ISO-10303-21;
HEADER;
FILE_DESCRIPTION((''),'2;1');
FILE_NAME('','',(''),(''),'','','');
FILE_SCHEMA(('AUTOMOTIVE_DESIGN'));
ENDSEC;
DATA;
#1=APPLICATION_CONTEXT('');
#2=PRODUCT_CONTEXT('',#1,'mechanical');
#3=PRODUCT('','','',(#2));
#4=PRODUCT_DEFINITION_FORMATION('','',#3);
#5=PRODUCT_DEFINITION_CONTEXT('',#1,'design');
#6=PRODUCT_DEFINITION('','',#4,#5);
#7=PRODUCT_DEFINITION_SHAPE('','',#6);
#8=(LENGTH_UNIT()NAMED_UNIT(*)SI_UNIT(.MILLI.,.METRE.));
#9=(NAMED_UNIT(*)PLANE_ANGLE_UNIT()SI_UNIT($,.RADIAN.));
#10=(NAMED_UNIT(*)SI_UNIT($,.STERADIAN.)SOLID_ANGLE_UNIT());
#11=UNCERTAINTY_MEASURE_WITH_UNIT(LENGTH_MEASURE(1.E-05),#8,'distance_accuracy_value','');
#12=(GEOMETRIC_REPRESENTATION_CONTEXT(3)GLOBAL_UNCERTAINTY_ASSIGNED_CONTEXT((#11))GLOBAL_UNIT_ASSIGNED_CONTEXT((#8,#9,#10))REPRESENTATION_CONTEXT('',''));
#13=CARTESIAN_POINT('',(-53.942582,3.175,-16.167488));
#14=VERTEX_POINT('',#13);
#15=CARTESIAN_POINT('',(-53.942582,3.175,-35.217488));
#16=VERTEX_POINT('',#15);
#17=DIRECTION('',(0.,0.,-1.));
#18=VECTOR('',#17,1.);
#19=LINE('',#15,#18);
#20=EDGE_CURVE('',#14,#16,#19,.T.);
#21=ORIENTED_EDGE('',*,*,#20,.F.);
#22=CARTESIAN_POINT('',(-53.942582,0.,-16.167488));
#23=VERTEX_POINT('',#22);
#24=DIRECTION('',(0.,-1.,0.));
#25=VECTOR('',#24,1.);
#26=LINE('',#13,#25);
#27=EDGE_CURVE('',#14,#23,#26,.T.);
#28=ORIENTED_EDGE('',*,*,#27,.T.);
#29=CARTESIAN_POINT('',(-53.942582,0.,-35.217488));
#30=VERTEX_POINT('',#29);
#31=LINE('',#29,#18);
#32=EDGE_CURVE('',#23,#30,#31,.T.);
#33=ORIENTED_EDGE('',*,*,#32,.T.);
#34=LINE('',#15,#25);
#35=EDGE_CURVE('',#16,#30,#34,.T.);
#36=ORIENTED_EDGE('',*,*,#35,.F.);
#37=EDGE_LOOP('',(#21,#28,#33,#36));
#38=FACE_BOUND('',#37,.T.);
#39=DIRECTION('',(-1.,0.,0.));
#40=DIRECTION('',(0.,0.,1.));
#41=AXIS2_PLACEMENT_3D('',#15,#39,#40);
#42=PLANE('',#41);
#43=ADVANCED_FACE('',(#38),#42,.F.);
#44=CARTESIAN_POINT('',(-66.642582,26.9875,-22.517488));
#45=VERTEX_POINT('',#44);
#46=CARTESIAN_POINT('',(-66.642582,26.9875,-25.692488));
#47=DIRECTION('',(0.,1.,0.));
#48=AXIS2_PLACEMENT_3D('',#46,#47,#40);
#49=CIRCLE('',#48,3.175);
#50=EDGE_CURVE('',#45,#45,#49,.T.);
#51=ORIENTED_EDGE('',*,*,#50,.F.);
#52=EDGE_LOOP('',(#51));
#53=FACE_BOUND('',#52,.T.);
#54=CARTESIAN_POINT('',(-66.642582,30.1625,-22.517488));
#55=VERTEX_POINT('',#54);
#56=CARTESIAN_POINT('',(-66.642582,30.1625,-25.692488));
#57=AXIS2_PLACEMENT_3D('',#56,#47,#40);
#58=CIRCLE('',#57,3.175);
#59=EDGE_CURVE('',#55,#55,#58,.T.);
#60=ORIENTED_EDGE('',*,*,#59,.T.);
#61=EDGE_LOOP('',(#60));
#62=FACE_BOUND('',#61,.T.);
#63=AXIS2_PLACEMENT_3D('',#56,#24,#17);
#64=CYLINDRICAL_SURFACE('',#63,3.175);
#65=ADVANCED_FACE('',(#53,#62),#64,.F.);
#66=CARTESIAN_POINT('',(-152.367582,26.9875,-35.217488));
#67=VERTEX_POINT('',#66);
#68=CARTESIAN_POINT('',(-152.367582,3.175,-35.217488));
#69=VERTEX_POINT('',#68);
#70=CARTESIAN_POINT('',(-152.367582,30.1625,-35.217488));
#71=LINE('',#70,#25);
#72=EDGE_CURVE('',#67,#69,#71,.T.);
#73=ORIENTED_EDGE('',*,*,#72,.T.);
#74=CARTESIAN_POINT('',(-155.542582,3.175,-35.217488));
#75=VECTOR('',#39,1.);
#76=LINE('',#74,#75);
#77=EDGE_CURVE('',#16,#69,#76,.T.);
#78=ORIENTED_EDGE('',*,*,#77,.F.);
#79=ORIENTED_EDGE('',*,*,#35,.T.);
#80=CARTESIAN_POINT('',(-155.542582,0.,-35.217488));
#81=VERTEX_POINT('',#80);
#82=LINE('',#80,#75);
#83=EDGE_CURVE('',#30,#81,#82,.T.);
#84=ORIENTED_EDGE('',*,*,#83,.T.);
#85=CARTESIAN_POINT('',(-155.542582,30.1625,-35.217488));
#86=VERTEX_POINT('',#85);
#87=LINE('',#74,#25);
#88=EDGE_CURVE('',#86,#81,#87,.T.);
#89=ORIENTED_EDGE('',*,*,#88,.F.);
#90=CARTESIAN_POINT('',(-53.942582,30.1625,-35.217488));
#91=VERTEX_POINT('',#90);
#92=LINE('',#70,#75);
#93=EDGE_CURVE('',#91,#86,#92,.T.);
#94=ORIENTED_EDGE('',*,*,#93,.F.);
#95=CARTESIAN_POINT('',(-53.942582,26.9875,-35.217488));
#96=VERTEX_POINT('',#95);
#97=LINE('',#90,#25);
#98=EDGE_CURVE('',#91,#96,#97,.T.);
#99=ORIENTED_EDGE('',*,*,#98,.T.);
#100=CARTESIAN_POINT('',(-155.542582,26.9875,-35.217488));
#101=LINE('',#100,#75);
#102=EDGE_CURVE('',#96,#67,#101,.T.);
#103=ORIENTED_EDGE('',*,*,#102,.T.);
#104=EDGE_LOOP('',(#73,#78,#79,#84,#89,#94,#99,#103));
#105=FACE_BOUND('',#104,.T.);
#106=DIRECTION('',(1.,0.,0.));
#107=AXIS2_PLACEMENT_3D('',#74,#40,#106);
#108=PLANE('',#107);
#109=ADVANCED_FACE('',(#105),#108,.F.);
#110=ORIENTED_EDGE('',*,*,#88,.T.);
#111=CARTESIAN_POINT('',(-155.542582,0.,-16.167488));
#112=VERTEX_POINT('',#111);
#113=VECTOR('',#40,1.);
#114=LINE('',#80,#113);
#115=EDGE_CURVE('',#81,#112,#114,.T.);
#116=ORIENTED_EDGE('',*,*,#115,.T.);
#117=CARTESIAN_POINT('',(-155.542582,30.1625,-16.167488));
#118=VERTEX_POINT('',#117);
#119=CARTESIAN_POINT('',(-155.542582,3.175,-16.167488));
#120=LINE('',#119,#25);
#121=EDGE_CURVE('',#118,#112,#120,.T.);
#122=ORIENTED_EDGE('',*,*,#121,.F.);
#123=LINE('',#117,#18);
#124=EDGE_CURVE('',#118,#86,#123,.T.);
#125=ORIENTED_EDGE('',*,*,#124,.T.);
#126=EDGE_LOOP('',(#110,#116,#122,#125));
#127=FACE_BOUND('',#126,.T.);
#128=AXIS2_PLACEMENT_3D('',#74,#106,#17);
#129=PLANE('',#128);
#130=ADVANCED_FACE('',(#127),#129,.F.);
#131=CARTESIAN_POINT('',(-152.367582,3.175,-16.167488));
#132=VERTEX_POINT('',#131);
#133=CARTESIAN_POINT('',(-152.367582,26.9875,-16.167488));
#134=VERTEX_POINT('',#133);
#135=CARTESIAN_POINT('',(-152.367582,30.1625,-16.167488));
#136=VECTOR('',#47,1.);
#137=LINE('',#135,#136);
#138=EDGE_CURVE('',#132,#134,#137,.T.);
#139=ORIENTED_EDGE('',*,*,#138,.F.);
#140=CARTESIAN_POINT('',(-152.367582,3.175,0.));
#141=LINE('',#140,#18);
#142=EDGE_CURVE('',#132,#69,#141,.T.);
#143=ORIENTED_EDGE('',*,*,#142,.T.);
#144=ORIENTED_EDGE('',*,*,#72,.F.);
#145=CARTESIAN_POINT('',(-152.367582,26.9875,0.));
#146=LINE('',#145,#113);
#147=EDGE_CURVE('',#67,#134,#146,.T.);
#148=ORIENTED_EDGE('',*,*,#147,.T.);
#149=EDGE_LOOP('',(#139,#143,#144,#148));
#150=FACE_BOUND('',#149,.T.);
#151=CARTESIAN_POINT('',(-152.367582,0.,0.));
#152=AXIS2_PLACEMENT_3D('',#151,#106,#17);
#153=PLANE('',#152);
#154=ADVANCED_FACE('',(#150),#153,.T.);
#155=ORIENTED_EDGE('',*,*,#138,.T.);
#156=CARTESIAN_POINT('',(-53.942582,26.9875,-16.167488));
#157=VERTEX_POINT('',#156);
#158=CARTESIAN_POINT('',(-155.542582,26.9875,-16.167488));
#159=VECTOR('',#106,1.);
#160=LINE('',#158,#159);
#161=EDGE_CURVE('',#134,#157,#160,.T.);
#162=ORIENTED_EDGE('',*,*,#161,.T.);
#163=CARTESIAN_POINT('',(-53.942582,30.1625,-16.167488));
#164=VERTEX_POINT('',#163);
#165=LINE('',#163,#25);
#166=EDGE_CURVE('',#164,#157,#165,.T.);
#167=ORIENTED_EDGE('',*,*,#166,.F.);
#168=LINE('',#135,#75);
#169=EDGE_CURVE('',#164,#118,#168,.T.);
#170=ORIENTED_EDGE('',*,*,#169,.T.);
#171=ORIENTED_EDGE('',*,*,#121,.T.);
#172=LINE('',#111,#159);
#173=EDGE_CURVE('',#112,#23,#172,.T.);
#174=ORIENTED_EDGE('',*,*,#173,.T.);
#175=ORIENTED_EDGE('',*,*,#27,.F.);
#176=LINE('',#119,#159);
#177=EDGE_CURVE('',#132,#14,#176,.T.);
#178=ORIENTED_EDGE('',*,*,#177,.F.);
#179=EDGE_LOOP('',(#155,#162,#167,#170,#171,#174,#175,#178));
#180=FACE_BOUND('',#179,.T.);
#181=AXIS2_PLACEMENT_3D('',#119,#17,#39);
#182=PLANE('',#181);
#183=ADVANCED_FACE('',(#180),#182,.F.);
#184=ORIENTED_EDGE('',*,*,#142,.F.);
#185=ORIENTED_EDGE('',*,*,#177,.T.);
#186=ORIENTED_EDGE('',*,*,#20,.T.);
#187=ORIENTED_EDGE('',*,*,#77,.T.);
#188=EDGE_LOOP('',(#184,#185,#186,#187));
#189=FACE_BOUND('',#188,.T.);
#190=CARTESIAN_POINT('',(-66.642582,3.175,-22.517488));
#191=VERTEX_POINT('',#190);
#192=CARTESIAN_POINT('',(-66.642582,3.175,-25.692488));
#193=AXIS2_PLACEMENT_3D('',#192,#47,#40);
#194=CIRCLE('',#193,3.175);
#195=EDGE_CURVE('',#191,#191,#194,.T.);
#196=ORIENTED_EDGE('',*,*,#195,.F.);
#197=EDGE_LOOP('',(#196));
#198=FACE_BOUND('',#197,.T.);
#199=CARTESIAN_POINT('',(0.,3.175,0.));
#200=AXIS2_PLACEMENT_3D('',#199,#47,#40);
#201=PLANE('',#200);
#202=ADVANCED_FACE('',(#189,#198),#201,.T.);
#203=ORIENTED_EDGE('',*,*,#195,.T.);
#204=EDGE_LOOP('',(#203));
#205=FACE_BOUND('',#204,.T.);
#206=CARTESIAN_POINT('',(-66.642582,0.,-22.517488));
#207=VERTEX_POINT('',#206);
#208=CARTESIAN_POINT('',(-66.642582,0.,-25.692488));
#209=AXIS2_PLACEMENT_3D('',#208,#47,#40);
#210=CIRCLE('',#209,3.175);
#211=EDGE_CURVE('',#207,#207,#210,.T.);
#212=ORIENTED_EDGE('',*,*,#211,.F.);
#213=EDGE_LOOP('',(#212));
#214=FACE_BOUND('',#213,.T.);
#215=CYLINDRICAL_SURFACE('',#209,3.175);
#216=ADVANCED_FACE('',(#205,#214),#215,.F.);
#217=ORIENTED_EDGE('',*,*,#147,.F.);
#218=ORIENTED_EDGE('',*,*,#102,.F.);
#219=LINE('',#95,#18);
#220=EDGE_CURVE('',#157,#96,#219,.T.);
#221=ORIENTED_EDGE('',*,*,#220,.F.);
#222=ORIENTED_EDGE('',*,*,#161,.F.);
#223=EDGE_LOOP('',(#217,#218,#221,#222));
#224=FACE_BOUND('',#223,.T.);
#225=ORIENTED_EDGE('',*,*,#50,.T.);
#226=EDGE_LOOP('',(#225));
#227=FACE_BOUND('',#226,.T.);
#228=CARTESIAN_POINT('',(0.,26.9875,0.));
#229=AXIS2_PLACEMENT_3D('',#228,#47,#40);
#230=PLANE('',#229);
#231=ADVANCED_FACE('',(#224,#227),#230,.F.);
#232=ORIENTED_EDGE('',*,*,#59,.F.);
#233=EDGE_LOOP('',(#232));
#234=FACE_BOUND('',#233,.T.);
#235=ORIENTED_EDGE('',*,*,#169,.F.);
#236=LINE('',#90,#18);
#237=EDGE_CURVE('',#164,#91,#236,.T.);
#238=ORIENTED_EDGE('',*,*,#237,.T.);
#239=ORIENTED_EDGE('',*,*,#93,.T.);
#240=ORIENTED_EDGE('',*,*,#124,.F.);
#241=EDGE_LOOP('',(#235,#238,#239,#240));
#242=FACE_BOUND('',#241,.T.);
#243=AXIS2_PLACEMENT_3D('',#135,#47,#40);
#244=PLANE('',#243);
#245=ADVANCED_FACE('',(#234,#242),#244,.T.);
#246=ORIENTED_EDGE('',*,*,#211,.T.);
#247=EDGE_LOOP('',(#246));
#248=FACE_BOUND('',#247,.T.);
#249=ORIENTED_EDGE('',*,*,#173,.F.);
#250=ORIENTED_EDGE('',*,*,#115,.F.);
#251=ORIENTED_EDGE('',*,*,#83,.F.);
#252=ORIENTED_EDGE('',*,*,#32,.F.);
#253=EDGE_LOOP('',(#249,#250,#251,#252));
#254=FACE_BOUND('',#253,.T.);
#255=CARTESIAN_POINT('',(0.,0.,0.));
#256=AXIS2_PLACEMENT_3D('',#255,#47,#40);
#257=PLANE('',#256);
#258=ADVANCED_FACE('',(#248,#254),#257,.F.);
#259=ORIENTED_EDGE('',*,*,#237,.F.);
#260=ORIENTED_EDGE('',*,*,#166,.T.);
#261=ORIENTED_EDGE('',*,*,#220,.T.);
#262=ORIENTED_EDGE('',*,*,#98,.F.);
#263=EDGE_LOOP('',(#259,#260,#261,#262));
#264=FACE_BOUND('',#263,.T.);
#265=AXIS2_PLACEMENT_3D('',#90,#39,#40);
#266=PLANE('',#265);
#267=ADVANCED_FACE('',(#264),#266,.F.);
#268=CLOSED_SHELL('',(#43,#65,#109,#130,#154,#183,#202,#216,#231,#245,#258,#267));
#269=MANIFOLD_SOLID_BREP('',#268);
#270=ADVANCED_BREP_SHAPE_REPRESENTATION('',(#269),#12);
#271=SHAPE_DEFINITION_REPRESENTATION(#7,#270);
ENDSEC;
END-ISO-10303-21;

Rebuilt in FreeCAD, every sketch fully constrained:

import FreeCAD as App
import Part
import Sketcher

V = App.Vector
Q = App.Units.Quantity


def add_polygon(sketch, points):
    """Adds a closed chain of lines whose ends are joined by coincident constraints."""
    first, n = sketch.GeometryCount, len(points)
    for a, b in zip(points, points[1:] + points[:1]):
        sketch.addGeometry(Part.LineSegment(App.Vector(*a, 0), App.Vector(*b, 0)), False)
    for i in range(n):
        sketch.addConstraint(Sketcher.Constraint("Coincident", first + i, 2, first + (i + 1) % n, 1))

doc = App.newDocument("Part")
params = doc.addObject("Spreadsheet::Sheet", "Params")
for row, (alias, value) in enumerate([
    ("sketch1_width", "4 in"),
    ("sketch1_height", "0.75 in"),
    ("pad1_length", "0.125 in"),
    ("sketch2_diameter", "0.25 in"),
    ("sketch3_diameter", "0.25 in"),
    ("sketch3_width", "4 in"),
    ("sketch3_height", "0.75 in"),
    ("pad2_length", "0.125 in"),
    ("sketch4_height", "0.75 in"),
    ("sketch4_width", "1.1875 in"),
    ("pad3_length", "0.125 in"),
], start=1):
    params.set(f"A{row}", alias)
    params.set(f"B{row}", "=" + value)
    params.setAlias(f"B{row}", alias)

body = doc.addObject("PartDesign::Body", "Body")

sketch1 = body.newObject("Sketcher::SketchObject", "Sketch")
sketch1.AttachmentSupport = (doc.getObject("XZ_Plane"), [""])
sketch1.MapMode = "FlatFace"
add_polygon(sketch1, [(-155.542582, -35.217488), (-155.542582, -16.167488), (-53.942582, -16.167488), (-53.942582, -35.217488)])
sketch1.addConstraint([
    Sketcher.Constraint("Vertical", 0),
    Sketcher.Constraint("Horizontal", 1),
    Sketcher.Constraint("Vertical", 2),
    Sketcher.Constraint("Horizontal", 3),
    Sketcher.Constraint("DistanceX", 1, 1, 1, 2, Q("4 in")),
    Sketcher.Constraint("DistanceY", 0, 1, 0, 2, Q("0.75 in")),
    Sketcher.Constraint("DistanceX", 0, 2, -1, 1, Q("155.542582 mm")),
    Sketcher.Constraint("DistanceY", 0, 2, -1, 1, Q("16.167488 mm")),
])
sketch1.setExpression("Constraints[8]", "Params.sketch1_width")
sketch1.setExpression("Constraints[9]", "Params.sketch1_height")
pad1 = body.newObject("PartDesign::Pad", "Pad")
pad1.Profile = sketch1
pad1.setExpression("Length", "Params.pad1_length")
pad1.Reversed = True

sketch2 = body.newObject("Sketcher::SketchObject", "Sketch001")
sketch2.AttachmentSupport = (doc.getObject("XZ_Plane"), [""])
sketch2.MapMode = "FlatFace"
sketch2.AttachmentOffset = App.Placement(V(0, 0, -0.125 * 25.4), App.Rotation())
sketch2.addGeometry(Part.Circle(V(-66.642582, -25.692488, 0), V(0, 0, 1), 3.175), False)
sketch2.addConstraint([
    Sketcher.Constraint("Diameter", 0, Q("0.25 in")),
    Sketcher.Constraint("DistanceX", 0, 3, -1, 1, Q("66.642582 mm")),
    Sketcher.Constraint("DistanceY", 0, 3, -1, 1, Q("25.692488 mm")),
])
sketch2.setExpression("Constraints[0]", "Params.sketch2_diameter")
pocket1 = body.newObject("PartDesign::Pocket", "Pocket")
pocket1.Profile = sketch2
pocket1.Type = "ThroughAll"
pocket1.Reversed = True
body2 = doc.addObject("PartDesign::Body", "Body001")

sketch3 = body2.newObject("Sketcher::SketchObject", "Sketch002")
sketch3.AttachmentSupport = (doc.getObject("XZ_Plane001"), [""])
sketch3.MapMode = "FlatFace"
sketch3.AttachmentOffset = App.Placement(V(0, 0, -1.0625 * 25.4), App.Rotation())
add_polygon(sketch3, [(-155.542582, -35.217488), (-155.542582, -16.167488), (-53.942582, -16.167488), (-53.942582, -35.217488)])
sketch3.addGeometry(Part.Circle(V(-66.642582, -25.692488, 0), V(0, 0, 1), 3.175), False)
sketch3.addConstraint([
    Sketcher.Constraint("Vertical", 0),
    Sketcher.Constraint("Horizontal", 1),
    Sketcher.Constraint("Vertical", 2),
    Sketcher.Constraint("Horizontal", 3),
    Sketcher.Constraint("Diameter", 4, Q("0.25 in")),
    Sketcher.Constraint("DistanceX", 1, 1, 1, 2, Q("4 in")),
    Sketcher.Constraint("DistanceY", 0, 1, 0, 2, Q("0.75 in")),
    Sketcher.Constraint("DistanceX", 0, 2, 4, 3, Q("3.5 in")),
    Sketcher.Constraint("DistanceY", 4, 3, 0, 2, Q("0.375 in")),
    Sketcher.Constraint("DistanceX", 4, 3, -1, 1, Q("66.642582 mm")),
    Sketcher.Constraint("DistanceY", 4, 3, -1, 1, Q("25.692488 mm")),
])
sketch3.setExpression("Constraints[8]", "Params.sketch3_diameter")
sketch3.setExpression("Constraints[9]", "Params.sketch3_width")
sketch3.setExpression("Constraints[10]", "Params.sketch3_height")
pad2 = body2.newObject("PartDesign::Pad", "Pad001")
pad2.Profile = sketch3
pad2.setExpression("Length", "Params.pad2_length")
pad2.Reversed = True
body.AllowCompound = True
doc.recompute()

boolean = body.newObject("PartDesign::Boolean", "Boolean")
boolean.Type = "Fuse"
boolean.addObjects([body2])

sketch4 = body.newObject("Sketcher::SketchObject", "Sketch003")
sketch4.AttachmentSupport = (doc.getObject("YZ_Plane"), [""])
sketch4.MapMode = "FlatFace"
sketch4.AttachmentOffset = App.Placement(V(0, 0, -155.542582), App.Rotation())
add_polygon(sketch4, [(30.1625, -35.217488), (0, -35.217488), (0, -16.167488), (30.1625, -16.167488)])
sketch4.addConstraint([
    Sketcher.Constraint("Horizontal", 0),
    Sketcher.Constraint("Vertical", 1),
    Sketcher.Constraint("Horizontal", 2),
    Sketcher.Constraint("Vertical", 3),
    Sketcher.Constraint("PointOnObject", 0, 2, -2),
    Sketcher.Constraint("DistanceY", 1, 1, 1, 2, Q("0.75 in")),
    Sketcher.Constraint("DistanceX", 0, 2, 0, 1, Q("1.1875 in")),
    Sketcher.Constraint("DistanceY", 0, 2, -1, 1, Q("35.217488 mm")),
])
sketch4.setExpression("Constraints[9]", "Params.sketch4_height")
sketch4.setExpression("Constraints[10]", "Params.sketch4_width")
pad3 = body.newObject("PartDesign::Pad", "Pad002")
pad3.Profile = sketch4
pad3.setExpression("Length", "Params.pad3_length")

doc.recompute()
